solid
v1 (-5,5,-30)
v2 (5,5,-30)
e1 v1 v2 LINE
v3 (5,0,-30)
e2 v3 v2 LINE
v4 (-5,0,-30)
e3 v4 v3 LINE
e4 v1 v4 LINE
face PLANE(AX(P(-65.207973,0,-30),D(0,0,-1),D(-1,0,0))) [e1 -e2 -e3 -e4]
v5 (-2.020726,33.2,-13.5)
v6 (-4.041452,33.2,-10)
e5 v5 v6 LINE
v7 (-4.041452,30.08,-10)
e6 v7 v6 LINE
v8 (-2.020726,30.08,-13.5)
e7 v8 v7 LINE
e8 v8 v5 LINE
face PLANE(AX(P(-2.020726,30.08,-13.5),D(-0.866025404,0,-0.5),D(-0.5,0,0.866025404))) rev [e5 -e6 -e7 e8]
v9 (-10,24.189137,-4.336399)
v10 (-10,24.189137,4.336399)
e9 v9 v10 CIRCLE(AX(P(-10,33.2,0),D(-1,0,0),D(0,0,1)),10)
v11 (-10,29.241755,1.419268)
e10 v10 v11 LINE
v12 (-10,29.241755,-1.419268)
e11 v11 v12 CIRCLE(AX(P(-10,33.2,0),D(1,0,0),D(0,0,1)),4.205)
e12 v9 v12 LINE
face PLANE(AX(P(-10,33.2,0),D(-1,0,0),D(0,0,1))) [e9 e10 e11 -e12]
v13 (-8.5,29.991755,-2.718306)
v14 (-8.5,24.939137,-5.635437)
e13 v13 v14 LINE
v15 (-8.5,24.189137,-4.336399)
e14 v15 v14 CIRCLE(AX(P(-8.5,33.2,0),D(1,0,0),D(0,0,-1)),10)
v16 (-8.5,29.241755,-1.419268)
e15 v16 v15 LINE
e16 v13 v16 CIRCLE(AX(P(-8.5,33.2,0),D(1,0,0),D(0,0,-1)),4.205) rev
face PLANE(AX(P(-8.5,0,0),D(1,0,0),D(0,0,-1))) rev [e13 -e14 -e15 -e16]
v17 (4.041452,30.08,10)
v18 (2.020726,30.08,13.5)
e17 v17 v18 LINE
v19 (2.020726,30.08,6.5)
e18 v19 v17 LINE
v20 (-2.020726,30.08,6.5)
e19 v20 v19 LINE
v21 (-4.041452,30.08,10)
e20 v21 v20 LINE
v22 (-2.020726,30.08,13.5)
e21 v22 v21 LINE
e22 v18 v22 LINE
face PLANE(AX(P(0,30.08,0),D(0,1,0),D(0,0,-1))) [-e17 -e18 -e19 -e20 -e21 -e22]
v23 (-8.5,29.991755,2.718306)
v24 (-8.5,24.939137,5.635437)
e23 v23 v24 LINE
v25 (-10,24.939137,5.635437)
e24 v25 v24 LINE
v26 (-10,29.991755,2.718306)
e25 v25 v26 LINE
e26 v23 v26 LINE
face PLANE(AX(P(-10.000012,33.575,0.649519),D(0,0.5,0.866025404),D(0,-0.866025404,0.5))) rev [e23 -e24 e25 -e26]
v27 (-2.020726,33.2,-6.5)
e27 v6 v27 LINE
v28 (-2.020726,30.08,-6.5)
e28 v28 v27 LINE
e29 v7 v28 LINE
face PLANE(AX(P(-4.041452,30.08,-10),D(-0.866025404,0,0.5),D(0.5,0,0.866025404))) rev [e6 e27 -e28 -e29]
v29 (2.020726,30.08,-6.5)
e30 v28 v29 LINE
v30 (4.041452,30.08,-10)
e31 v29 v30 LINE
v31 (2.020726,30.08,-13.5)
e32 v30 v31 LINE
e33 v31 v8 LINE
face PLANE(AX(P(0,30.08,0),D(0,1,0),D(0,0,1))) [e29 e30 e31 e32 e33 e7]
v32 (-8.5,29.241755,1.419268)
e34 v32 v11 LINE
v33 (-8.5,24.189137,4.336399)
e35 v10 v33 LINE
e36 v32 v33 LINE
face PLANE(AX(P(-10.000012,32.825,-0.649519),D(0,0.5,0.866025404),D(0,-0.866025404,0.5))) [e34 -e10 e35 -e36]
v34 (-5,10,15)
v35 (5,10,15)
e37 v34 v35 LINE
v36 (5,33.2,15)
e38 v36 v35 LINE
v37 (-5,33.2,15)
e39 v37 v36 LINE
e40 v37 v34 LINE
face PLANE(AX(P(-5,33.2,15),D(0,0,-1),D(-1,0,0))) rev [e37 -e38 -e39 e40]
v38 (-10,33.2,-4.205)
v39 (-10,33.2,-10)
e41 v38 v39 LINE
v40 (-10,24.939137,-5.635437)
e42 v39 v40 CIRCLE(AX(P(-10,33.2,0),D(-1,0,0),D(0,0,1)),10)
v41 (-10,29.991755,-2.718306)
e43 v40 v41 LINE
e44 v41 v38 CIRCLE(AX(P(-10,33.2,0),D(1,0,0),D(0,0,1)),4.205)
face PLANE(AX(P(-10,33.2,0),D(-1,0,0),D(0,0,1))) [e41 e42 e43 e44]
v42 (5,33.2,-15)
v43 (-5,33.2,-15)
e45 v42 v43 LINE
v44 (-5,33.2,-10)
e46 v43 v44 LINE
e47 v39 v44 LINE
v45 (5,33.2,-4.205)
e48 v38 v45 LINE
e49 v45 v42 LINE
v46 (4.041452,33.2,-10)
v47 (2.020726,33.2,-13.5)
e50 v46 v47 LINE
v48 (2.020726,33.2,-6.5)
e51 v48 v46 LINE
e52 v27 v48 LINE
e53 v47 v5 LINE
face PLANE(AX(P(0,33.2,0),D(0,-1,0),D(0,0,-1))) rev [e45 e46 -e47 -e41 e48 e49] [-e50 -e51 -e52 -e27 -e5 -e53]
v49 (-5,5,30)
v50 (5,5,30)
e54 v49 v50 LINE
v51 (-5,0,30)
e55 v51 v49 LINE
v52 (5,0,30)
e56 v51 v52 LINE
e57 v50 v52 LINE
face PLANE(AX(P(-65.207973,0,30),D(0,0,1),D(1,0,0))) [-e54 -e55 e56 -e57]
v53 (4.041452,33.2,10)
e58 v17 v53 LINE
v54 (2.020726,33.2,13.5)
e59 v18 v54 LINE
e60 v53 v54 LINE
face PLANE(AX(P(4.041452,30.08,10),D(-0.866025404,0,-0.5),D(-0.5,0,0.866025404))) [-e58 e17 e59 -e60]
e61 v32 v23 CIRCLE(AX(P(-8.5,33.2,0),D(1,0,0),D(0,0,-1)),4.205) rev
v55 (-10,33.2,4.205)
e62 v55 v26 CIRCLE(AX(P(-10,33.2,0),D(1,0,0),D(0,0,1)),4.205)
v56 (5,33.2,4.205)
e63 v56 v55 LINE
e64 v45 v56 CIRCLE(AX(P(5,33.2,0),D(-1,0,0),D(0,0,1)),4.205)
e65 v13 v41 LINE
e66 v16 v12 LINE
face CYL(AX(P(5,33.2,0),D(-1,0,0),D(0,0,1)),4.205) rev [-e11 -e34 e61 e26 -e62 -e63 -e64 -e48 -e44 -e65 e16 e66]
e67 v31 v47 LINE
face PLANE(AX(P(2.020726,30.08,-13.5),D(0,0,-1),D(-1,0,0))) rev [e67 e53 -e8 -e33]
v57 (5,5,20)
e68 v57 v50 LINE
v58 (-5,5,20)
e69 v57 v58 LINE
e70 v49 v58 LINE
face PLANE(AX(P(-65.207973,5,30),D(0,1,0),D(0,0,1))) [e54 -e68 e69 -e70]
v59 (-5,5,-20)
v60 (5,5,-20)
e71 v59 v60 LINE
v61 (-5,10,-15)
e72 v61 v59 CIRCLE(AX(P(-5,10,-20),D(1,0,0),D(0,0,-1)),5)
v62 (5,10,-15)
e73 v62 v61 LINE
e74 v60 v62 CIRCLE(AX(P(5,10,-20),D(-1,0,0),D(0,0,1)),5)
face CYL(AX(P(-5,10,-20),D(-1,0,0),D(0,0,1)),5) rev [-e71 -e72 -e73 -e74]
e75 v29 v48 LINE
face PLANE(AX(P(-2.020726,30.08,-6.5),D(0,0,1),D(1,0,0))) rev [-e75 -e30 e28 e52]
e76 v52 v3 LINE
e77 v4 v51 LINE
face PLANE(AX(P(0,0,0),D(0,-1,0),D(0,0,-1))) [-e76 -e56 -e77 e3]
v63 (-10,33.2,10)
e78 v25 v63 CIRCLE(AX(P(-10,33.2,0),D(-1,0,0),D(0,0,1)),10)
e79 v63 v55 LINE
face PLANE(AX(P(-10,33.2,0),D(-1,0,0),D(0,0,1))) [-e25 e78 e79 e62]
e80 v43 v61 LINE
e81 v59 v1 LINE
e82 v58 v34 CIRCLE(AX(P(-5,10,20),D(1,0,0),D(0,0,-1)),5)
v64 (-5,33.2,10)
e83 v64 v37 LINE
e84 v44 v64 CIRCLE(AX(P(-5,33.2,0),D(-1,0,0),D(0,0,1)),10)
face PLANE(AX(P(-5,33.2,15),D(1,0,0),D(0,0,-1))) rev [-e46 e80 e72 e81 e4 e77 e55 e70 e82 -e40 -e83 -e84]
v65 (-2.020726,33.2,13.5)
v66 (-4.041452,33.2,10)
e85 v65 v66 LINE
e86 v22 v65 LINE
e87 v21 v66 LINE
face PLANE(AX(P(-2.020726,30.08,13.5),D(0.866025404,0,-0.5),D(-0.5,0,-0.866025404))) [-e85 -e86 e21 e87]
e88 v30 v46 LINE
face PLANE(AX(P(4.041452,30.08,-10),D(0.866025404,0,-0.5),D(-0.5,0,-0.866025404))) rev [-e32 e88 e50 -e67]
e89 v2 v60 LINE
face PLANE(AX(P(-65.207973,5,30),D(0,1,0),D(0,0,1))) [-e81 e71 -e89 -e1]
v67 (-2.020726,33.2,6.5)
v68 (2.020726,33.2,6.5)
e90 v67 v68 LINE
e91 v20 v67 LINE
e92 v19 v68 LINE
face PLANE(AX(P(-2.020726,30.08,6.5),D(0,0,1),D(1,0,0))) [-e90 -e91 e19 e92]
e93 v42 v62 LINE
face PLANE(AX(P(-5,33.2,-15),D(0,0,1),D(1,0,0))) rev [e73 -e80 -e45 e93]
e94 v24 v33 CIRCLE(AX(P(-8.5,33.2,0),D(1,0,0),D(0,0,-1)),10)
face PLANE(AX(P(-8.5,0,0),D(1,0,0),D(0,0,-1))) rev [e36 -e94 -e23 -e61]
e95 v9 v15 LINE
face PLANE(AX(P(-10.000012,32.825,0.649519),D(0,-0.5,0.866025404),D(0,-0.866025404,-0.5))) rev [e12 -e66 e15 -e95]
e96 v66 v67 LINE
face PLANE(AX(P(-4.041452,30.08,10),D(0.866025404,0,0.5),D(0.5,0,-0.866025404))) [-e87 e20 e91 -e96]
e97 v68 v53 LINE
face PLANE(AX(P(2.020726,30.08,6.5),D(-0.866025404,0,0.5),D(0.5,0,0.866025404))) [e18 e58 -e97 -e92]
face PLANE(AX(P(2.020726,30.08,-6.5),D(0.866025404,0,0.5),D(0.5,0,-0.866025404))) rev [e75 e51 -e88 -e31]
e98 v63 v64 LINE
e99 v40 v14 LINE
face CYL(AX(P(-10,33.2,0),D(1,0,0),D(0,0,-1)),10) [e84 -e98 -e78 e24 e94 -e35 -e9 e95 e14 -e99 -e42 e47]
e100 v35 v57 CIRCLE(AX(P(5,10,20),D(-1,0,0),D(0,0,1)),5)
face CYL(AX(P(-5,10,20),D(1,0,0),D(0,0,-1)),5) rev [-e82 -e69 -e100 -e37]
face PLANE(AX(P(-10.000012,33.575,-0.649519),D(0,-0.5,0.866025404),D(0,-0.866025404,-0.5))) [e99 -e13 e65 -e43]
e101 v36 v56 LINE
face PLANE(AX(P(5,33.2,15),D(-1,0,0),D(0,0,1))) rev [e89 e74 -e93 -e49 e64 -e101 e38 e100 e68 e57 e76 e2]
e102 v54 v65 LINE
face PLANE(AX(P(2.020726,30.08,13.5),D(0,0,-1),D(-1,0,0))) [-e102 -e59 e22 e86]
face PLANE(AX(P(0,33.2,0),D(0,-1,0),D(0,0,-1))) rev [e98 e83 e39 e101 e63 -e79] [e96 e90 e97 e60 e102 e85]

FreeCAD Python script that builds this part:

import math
import FreeCAD as App
import Part
import Sketcher
Q = App.Units.Quantity


def edges_at(feature, points):
    """Names of the edges that pass closest to the given points."""
    edges = feature.Shape.Edges
    near = lambda p: min(range(len(edges)), key=lambda i: edges[i].distToShape(Part.Vertex(*p))[0])
    return sorted({f"Edge{near(p) + 1}" for p in points})

doc = App.newDocument("Part")
body = doc.addObject("PartDesign::Body", "Body")

# Sketch on XZ plane
sketch1 = doc.addObject("Sketcher::SketchObject", "Sketch")
body.addObject(sketch1)
sketch1.AttachmentSupport = (doc.XZ_Plane, [""])
sketch1.MapMode = "FlatFace"
sketch1.addGeometry([
    Part.LineSegment(App.Vector(-5, -15, 0), App.Vector(-5, 15, 0)),
    Part.LineSegment(App.Vector(-5, 15, 0), App.Vector(5, 15, 0)),
    Part.LineSegment(App.Vector(5, 15, 0), App.Vector(5, -15, 0)),
    Part.LineSegment(App.Vector(5, -15, 0), App.Vector(-5, -15, 0)),
], False)
sketch1.addConstraint([
    Sketcher.Constraint("Coincident", 0, 2, 1, 1),
    Sketcher.Constraint("Coincident", 1, 2, 2, 1),
    Sketcher.Constraint("Coincident", 2, 2, 3, 1),
    Sketcher.Constraint("Coincident", 3, 2, 0, 1),
    Sketcher.Constraint("Vertical", 0),
    Sketcher.Constraint("Horizontal", 1),
    Sketcher.Constraint("Vertical", 2),
    Sketcher.Constraint("Horizontal", 3),
    Sketcher.Constraint("Symmetric", 0, 2, 2, 2, -1, 1),
    Sketcher.Constraint("DistanceX", 1, 1, 1, 2, 10.0),
    Sketcher.Constraint("DistanceY", 0, 1, 0, 2, 30.0),
])
pad1 = doc.addObject("PartDesign::Pad", "Pad")
body.addObject(pad1)
pad1.Profile = sketch1
pad1.Length = 33.2
pad1.Reversed = True

# Sketch on YZ plane
sketch2 = doc.addObject("Sketcher::SketchObject", "Sketch001")
body.addObject(sketch2)
sketch2.AttachmentSupport = (doc.YZ_Plane, [""])
sketch2.MapMode = "FlatFace"
sketch2.AttachmentOffset = App.Placement(App.Vector(0, 0, -5), App.Rotation())
sketch2.addGeometry(Part.Circle(App.Vector(33.2, 0, 0), App.Vector(0, 0, 1), 4.2), False)
sketch2.addConstraint([
    Sketcher.Constraint("PointOnObject", 0, 3, -1),
    Sketcher.Constraint("Diameter", 0, 8.41),
    Sketcher.Constraint("DistanceX", -1, 1, 0, 3, 33.2),
])
pocket1 = doc.addObject("PartDesign::Pocket", "Pocket")
body.addObject(pocket1)
pocket1.Profile = sketch2
pocket1.Type = "ThroughAll"
pocket1.Reversed = True

# Sketch on XZ plane
sketch3 = doc.addObject("Sketcher::SketchObject", "Sketch002")
body.addObject(sketch3)
sketch3.AttachmentSupport = (doc.XZ_Plane, [""])
sketch3.MapMode = "FlatFace"
sketch3.AttachmentOffset = App.Placement(App.Vector(0, 0, -33.2), App.Rotation())
sketch3.addGeometry([
    Part.LineSegment(App.Vector(2, -6.5, 0), App.Vector(4, -10, 0)),  # 0
    Part.LineSegment(App.Vector(4, -10, 0), App.Vector(2, -13.5, 0)),  # 1
    Part.LineSegment(App.Vector(2, -13.5, 0), App.Vector(-2, -13.5, 0)),  # 2
    Part.LineSegment(App.Vector(-2, -13.5, 0), App.Vector(-4, -10, 0)),  # 3
    Part.LineSegment(App.Vector(-4, -10, 0), App.Vector(-2, -6.5, 0)),  # 4
    Part.LineSegment(App.Vector(-2, -6.5, 0), App.Vector(2, -6.5, 0)),  # 5
], False)
sketch3.addConstraint([
    Sketcher.Constraint("Coincident", 0, 2, 1, 1),
    Sketcher.Constraint("Coincident", 1, 2, 2, 1),
    Sketcher.Constraint("Coincident", 2, 2, 3, 1),
    Sketcher.Constraint("Coincident", 3, 2, 4, 1),
    Sketcher.Constraint("Coincident", 4, 2, 5, 1),
    Sketcher.Constraint("Coincident", 5, 2, 0, 1),
    Sketcher.Constraint("Horizontal", 2),
    Sketcher.Constraint("Horizontal", 5),
    Sketcher.Constraint("Symmetric", 0, 2, 3, 2, -2),
    Sketcher.Constraint("Parallel", 0, 3),
    Sketcher.Constraint("Parallel", 1, 4),
    Sketcher.Constraint("Vertical", 2, 2, 4, 2),
    Sketcher.Constraint("Vertical", 1, 2, 5, 2),
    Sketcher.Constraint("Angle", 0, Q("-60 deg")),
    Sketcher.Constraint("DistanceY", 0, 2, -1, 1, 10.0),
    Sketcher.Constraint("DistanceY", 2, 2, 4, 2, 7.0),
    Sketcher.Constraint("DistanceX", 2, 2, 2, 1, 4.041452),
])
pocket2 = doc.addObject("PartDesign::Pocket", "Pocket001")
body.addObject(pocket2)
pocket2.Profile = sketch3
pocket2.Length = 3.12
pocket2.Reversed = True
doc.recompute()

mirrored = doc.addObject("PartDesign::Mirrored", "Mirrored")
body.addObject(mirrored)
mirrored.Originals = [pocket2]
mirrored.MirrorPlane = (doc.XY_Plane, [""])
body.Tip = mirrored

# Sketch on YZ plane
sketch4 = doc.addObject("Sketcher::SketchObject", "Sketch003")
body.addObject(sketch4)
sketch4.AttachmentSupport = (doc.YZ_Plane, [""])
sketch4.MapMode = "FlatFace"
sketch4.AttachmentOffset = App.Placement(App.Vector(0, 0, 5), App.Rotation())
sketch4.addGeometry([
    Part.LineSegment(App.Vector(5, 30, 0), App.Vector(0, 30, 0)),
    Part.LineSegment(App.Vector(0, 30, 0), App.Vector(0, -30, 0)),
    Part.LineSegment(App.Vector(0, -30, 0), App.Vector(5, -30, 0)),
    Part.LineSegment(App.Vector(5, -30, 0), App.Vector(5, 30, 0)),
], False)
sketch4.addConstraint([
    Sketcher.Constraint("Coincident", 0, 2, 1, 1),
    Sketcher.Constraint("Coincident", 1, 2, 2, 1),
    Sketcher.Constraint("Coincident", 2, 2, 3, 1),
    Sketcher.Constraint("Coincident", 3, 2, 0, 1),
    Sketcher.Constraint("Horizontal", 0),
    Sketcher.Constraint("Vertical", 1),
    Sketcher.Constraint("Horizontal", 2),
    Sketcher.Constraint("Vertical", 3),
    Sketcher.Constraint("Symmetric", 0, 2, 1, 2, -1, 1),
    Sketcher.Constraint("DistanceX", 0, 2, 0, 1, 5.0),
    Sketcher.Constraint("DistanceY", 1, 2, 1, 1, 60.0),
])
pad2 = doc.addObject("PartDesign::Pad", "Pad001")
body.addObject(pad2)
pad2.Profile = sketch4
pad2.Length = 10
pad2.Reversed = True
doc.recompute()

fillet = doc.addObject("PartDesign::Fillet", "Fillet")
body.addObject(fillet)
fillet.Base = (pad2, edges_at(pad2, [(0, 5, -15), (0, 5, 15)]))
fillet.Radius = 5

# Sketch on YZ plane
sketch5 = doc.addObject("Sketcher::SketchObject", "Sketch004")
body.addObject(sketch5)
sketch5.AttachmentSupport = (doc.YZ_Plane, [""])
sketch5.MapMode = "FlatFace"
sketch5.AttachmentOffset = App.Placement(App.Vector(0, 0, -10), App.Rotation())
sketch5.addGeometry([
    Part.LineSegment(App.Vector(33.2, -4.2, 0), App.Vector(33.2, -10, 0)),
    Part.ArcOfCircle(Part.Circle(App.Vector(33.2, 0, 0), App.Vector(0, 0, 1), 10), math.radians(90), math.radians(270)),
    Part.LineSegment(App.Vector(33.2, 10, 0), App.Vector(33.2, 4.2, 0)),
    Part.ArcOfCircle(Part.Circle(App.Vector(33.2, 0, 0), App.Vector(0, 0, 1), 4.2), math.radians(90), math.radians(270)),
], False)
sketch5.addConstraint([
    Sketcher.Constraint("Coincident", 0, 2, 1, 2),
    Sketcher.Constraint("Coincident", 1, 1, 2, 1),
    Sketcher.Constraint("Coincident", 2, 2, 3, 1),
    Sketcher.Constraint("Coincident", 3, 2, 0, 1),
    Sketcher.Constraint("Vertical", 0),
    Sketcher.Constraint("Vertical", 2),
    Sketcher.Constraint("Coincident", 3, 3, 1, 3),
    Sketcher.Constraint("Symmetric", 0, 2, 1, 1, -1),
    Sketcher.Constraint("Vertical", 3, 3, 0, 2),
    Sketcher.Constraint("Radius", 1, 10.0),
    Sketcher.Constraint("Radius", 3, 4.205),
    Sketcher.Constraint("DistanceX", -1, 1, 1, 3, 33.2),
])
pad3 = doc.addObject("PartDesign::Pad", "Pad002")
body.addObject(pad3)
pad3.Profile = sketch5
pad3.Length = 5

# Sketch on YZ plane
sketch6 = doc.addObject("Sketcher::SketchObject", "Sketch005")
body.addObject(sketch6)
sketch6.AttachmentSupport = (doc.YZ_Plane, [""])
sketch6.MapMode = "FlatFace"
sketch6.AttachmentOffset = App.Placement(App.Vector(0, 0, -10), App.Rotation())
sketch6.addGeometry([
    Part.LineSegment(App.Vector(32.8, -0.6, 0), App.Vector(24.2, 4.4, 0)),
    Part.LineSegment(App.Vector(24.2, 4.4, 0), App.Vector(24.9, 5.6, 0)),
    Part.LineSegment(App.Vector(24.9, 5.6, 0), App.Vector(33.6, 0.6, 0)),
    Part.LineSegment(App.Vector(33.6, 0.6, 0), App.Vector(32.8, -0.6, 0)),
], False)
sketch6.addConstraint([
    Sketcher.Constraint("Coincident", 0, 2, 1, 1),
    Sketcher.Constraint("Coincident", 1, 2, 2, 1),
    Sketcher.Constraint("Coincident", 2, 2, 3, 1),
    Sketcher.Constraint("Coincident", 3, 2, 0, 1),
    Sketcher.Constraint("Perpendicular", 0, 1),
    Sketcher.Constraint("Perpendicular", 1, 2),
    Sketcher.Constraint("Perpendicular", 2, 3),
    Sketcher.Constraint("Angle", 0, Q("150 deg")),
    Sketcher.Constraint("Distance", 0, 10.0),
    Sketcher.Constraint("Distance", 1, 1.5),
    Sketcher.Constraint("DistanceX", -1, 1, 2, 2, 33.575),
    Sketcher.Constraint("DistanceY", -1, 1, 0, 2, 4.350481),
])
pocket3 = doc.addObject("PartDesign::Pocket", "Pocket002")
body.addObject(pocket3)
pocket3.Profile = sketch6
pocket3.Type = "TwoLengths"
pocket3.Length = 48.193644
pocket3.Length2 = 1.5

# Sketch on YZ plane
sketch7 = doc.addObject("Sketcher::SketchObject", "Sketch006")
body.addObject(sketch7)
sketch7.AttachmentSupport = (doc.YZ_Plane, [""])
sketch7.MapMode = "FlatFace"
sketch7.AttachmentOffset = App.Placement(App.Vector(0, 0, -10), App.Rotation())
sketch7.addGeometry([
    Part.LineSegment(App.Vector(33.6, -0.6, 0), App.Vector(24.9, -5.6, 0)),
    Part.LineSegment(App.Vector(24.9, -5.6, 0), App.Vector(24.2, -4.4, 0)),
    Part.LineSegment(App.Vector(24.2, -4.4, 0), App.Vector(32.8, 0.6, 0)),
    Part.LineSegment(App.Vector(32.8, 0.6, 0), App.Vector(33.6, -0.6, 0)),
], False)
sketch7.addConstraint([
    Sketcher.Constraint("Coincident", 0, 2, 1, 1),
    Sketcher.Constraint("Coincident", 1, 2, 2, 1),
    Sketcher.Constraint("Coincident", 2, 2, 3, 1),
    Sketcher.Constraint("Coincident", 3, 2, 0, 1),
    Sketcher.Constraint("Perpendicular", 0, 1),
    Sketcher.Constraint("Perpendicular", 1, 2),
    Sketcher.Constraint("Perpendicular", 2, 3),
    Sketcher.Constraint("Angle", 0, Q("-150 deg")),
    Sketcher.Constraint("Distance", 0, 10.0),
    Sketcher.Constraint("Distance", 1, 1.5),
    Sketcher.Constraint("DistanceX", -1, 1, 2, 2, 32.825),
    Sketcher.Constraint("DistanceY", 0, 2, -1, 1, 5.649519),
])
pocket4 = doc.addObject("PartDesign::Pocket", "Pocket003")
body.addObject(pocket4)
pocket4.Profile = sketch7
pocket4.Type = "TwoLengths"
pocket4.Length = 48.193644
pocket4.Length2 = 1.5

doc.recompute()
